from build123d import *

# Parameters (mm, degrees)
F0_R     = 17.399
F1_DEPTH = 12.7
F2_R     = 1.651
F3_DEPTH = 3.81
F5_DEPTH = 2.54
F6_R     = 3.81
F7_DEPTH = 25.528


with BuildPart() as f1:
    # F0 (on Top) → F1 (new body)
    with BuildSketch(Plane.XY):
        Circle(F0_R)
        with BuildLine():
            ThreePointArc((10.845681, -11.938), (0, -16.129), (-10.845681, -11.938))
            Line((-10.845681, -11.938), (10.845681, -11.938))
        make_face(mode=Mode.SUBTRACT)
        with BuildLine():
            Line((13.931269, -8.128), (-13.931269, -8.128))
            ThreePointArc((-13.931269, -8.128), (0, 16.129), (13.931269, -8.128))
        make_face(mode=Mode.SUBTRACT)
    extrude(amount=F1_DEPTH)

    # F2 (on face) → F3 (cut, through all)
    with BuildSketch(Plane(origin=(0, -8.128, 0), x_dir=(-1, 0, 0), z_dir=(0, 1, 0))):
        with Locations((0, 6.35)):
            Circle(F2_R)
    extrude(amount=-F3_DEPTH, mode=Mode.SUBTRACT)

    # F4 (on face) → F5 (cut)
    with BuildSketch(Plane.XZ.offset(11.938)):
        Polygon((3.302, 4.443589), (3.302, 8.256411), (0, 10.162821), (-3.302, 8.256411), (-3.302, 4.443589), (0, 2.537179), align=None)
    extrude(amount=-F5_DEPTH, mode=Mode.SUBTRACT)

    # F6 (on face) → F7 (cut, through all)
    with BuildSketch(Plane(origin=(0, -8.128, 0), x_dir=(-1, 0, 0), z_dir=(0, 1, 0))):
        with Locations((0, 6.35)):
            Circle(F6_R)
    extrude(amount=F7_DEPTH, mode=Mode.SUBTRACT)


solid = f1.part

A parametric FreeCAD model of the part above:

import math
import FreeCAD as App
import Part
import Sketcher
from FreeCAD import Vector
Q = App.Units.Quantity

doc = App.newDocument("Part")
body = doc.addObject("PartDesign::Body", "Body")

sketch1 = body.newObject("Sketcher::SketchObject", "Sketch")
sketch1.AttachmentSupport = (doc.getObject("XY_Plane"), [""])
sketch1.MapMode = "FlatFace"
sketch1.addGeometry([
    Part.Circle(Vector(0, 0, 0), Vector(0, 0, 1), 17.399),
    Part.LineSegment(Vector(-10.845681, -11.938, 0), Vector(10.845681, -11.938, 0)),
    Part.ArcOfCircle(Part.Circle(Vector(0, 0, 0), Vector(0, 0, 1), 16.129), math.radians(-132.255168), math.radians(-47.744832)),
    Part.ArcOfCircle(Part.Circle(Vector(0, 0, 0), Vector(0, 0, 1), 16.129), math.radians(-30.260814), math.radians(210.260814)),
    Part.LineSegment(Vector(13.931269, -8.128, 0), Vector(-13.931269, -8.128, 0)),
], False)
sketch1.addConstraint([
    Sketcher.Constraint("Coincident", 1, 1, 2, 1),
    Sketcher.Constraint("Coincident", 2, 2, 1, 2),
    Sketcher.Constraint("Coincident", 3, 1, 4, 1),
    Sketcher.Constraint("Coincident", 4, 2, 3, 2),
    Sketcher.Constraint("Horizontal", 1),
    Sketcher.Constraint("Horizontal", 4),
    Sketcher.Constraint("Coincident", 0, 3, -1, 1),
    Sketcher.Constraint("Coincident", 2, 3, -1, 1),
    Sketcher.Constraint("Coincident", 3, 3, -1, 1),
    Sketcher.Constraint("Equal", 2, 3),
    Sketcher.Constraint("Diameter", 0, Q("1.37 in")),
    Sketcher.Constraint("Radius", 2, Q("0.635 in")),
    Sketcher.Constraint("DistanceY", 1, 1, -1, 1, Q("0.47 in")),
    Sketcher.Constraint("DistanceY", 3, 1, -1, 1, Q("0.32 in")),
])
pad1 = body.newObject("PartDesign::Pad", "Pad")
pad1.Profile = sketch1
pad1.Length = Q("0.5 in")

sketch2 = body.newObject("Sketcher::SketchObject", "Sketch001")
sketch2.AttachmentSupport = (doc.getObject("XZ_Plane"), [""])
sketch2.MapMode = "FlatFace"
sketch2.AttachmentOffset = App.Placement(Vector(0, 0, 0.32 * 25.4), App.Rotation())
sketch2.addGeometry(Part.Circle(Vector(0, 6.35, 0), Vector(0, 0, 1), 1.651), False)
sketch2.addConstraint([
    Sketcher.Constraint("PointOnObject", 0, 3, -2),
    Sketcher.Constraint("Diameter", 0, Q("0.13 in")),
    Sketcher.Constraint("DistanceY", -1, 1, 0, 3, Q("0.25 in")),
])
pocket1 = body.newObject("PartDesign::Pocket", "Pocket")
pocket1.Profile = sketch2
pocket1.Length = Q("0.15 in")
pocket1.Reversed = True

sketch3 = body.newObject("Sketcher::SketchObject", "Sketch002")
sketch3.AttachmentSupport = (doc.getObject("XZ_Plane"), [""])
sketch3.MapMode = "FlatFace"
sketch3.AttachmentOffset = App.Placement(Vector(0, 0, 0.47 * 25.4), App.Rotation())
sketch3.addGeometry([
    Part.LineSegment(Vector(3.302, 4.443589, 0), Vector(3.302, 8.256411, 0)),
    Part.LineSegment(Vector(3.302, 8.256411, 0), Vector(0, 10.162821, 0)),
    Part.LineSegment(Vector(0, 10.162821, 0), Vector(-3.302, 8.256411, 0)),
    Part.LineSegment(Vector(-3.302, 8.256411, 0), Vector(-3.302, 4.443589, 0)),
    Part.LineSegment(Vector(-3.302, 4.443589, 0), Vector(0, 2.537179, 0)),
    Part.LineSegment(Vector(0, 2.537179, 0), Vector(3.302, 4.443589, 0)),
], False)
sketch3.addConstraint([
    Sketcher.Constraint("Coincident", 0, 2, 1, 1),
    Sketcher.Constraint("Coincident", 1, 2, 2, 1),
    Sketcher.Constraint("Coincident", 2, 2, 3, 1),
    Sketcher.Constraint("Coincident", 3, 2, 4, 1),
    Sketcher.Constraint("Coincident", 4, 2, 5, 1),
    Sketcher.Constraint("Coincident", 5, 2, 0, 1),
    Sketcher.Constraint("Vertical", 0),
    Sketcher.Constraint("Vertical", 3),
    Sketcher.Constraint("Symmetric", 0, 2, 2, 2, -2),
    Sketcher.Constraint("PointOnObject", 1, 2, -2),
    Sketcher.Constraint("PointOnObject", 4, 2, -2),
    Sketcher.Constraint("Parallel", 1, 4),
    Sketcher.Constraint("Parallel", 2, 5),
    Sketcher.Constraint("Angle", 1, Q("150.000008 deg")),
    Sketcher.Constraint("DistanceX", -1, 1, 0, 2, Q("0.13 in")),
    Sketcher.Constraint("DistanceY", 0, 1, 0, 2, Q("3.812822 mm")),
    Sketcher.Constraint("DistanceY", -1, 1, 0, 2, Q("8.256411 mm")),
])
pocket2 = body.newObject("PartDesign::Pocket", "Pocket001")
pocket2.Profile = sketch3
pocket2.Length = Q("0.1 in")

sketch4 = body.newObject("Sketcher::SketchObject", "Sketch003")
sketch4.AttachmentSupport = (doc.getObject("XZ_Plane"), [""])
sketch4.MapMode = "FlatFace"
sketch4.AttachmentOffset = App.Placement(Vector(0, 0, 0.32 * 25.4), App.Rotation())
sketch4.addGeometry(Part.Circle(Vector(0, 6.35, 0), Vector(0, 0, 1), 3.81), False)
sketch4.addConstraint([
    Sketcher.Constraint("PointOnObject", 0, 3, -2),
    Sketcher.Constraint("Diameter", 0, Q("0.3 in")),
    Sketcher.Constraint("DistanceY", -1, 1, 0, 3, Q("0.25 in")),
])
pocket3 = body.newObject("PartDesign::Pocket", "Pocket002")
pocket3.Profile = sketch4
pocket3.Type = "ThroughAll"

doc.recompute()
